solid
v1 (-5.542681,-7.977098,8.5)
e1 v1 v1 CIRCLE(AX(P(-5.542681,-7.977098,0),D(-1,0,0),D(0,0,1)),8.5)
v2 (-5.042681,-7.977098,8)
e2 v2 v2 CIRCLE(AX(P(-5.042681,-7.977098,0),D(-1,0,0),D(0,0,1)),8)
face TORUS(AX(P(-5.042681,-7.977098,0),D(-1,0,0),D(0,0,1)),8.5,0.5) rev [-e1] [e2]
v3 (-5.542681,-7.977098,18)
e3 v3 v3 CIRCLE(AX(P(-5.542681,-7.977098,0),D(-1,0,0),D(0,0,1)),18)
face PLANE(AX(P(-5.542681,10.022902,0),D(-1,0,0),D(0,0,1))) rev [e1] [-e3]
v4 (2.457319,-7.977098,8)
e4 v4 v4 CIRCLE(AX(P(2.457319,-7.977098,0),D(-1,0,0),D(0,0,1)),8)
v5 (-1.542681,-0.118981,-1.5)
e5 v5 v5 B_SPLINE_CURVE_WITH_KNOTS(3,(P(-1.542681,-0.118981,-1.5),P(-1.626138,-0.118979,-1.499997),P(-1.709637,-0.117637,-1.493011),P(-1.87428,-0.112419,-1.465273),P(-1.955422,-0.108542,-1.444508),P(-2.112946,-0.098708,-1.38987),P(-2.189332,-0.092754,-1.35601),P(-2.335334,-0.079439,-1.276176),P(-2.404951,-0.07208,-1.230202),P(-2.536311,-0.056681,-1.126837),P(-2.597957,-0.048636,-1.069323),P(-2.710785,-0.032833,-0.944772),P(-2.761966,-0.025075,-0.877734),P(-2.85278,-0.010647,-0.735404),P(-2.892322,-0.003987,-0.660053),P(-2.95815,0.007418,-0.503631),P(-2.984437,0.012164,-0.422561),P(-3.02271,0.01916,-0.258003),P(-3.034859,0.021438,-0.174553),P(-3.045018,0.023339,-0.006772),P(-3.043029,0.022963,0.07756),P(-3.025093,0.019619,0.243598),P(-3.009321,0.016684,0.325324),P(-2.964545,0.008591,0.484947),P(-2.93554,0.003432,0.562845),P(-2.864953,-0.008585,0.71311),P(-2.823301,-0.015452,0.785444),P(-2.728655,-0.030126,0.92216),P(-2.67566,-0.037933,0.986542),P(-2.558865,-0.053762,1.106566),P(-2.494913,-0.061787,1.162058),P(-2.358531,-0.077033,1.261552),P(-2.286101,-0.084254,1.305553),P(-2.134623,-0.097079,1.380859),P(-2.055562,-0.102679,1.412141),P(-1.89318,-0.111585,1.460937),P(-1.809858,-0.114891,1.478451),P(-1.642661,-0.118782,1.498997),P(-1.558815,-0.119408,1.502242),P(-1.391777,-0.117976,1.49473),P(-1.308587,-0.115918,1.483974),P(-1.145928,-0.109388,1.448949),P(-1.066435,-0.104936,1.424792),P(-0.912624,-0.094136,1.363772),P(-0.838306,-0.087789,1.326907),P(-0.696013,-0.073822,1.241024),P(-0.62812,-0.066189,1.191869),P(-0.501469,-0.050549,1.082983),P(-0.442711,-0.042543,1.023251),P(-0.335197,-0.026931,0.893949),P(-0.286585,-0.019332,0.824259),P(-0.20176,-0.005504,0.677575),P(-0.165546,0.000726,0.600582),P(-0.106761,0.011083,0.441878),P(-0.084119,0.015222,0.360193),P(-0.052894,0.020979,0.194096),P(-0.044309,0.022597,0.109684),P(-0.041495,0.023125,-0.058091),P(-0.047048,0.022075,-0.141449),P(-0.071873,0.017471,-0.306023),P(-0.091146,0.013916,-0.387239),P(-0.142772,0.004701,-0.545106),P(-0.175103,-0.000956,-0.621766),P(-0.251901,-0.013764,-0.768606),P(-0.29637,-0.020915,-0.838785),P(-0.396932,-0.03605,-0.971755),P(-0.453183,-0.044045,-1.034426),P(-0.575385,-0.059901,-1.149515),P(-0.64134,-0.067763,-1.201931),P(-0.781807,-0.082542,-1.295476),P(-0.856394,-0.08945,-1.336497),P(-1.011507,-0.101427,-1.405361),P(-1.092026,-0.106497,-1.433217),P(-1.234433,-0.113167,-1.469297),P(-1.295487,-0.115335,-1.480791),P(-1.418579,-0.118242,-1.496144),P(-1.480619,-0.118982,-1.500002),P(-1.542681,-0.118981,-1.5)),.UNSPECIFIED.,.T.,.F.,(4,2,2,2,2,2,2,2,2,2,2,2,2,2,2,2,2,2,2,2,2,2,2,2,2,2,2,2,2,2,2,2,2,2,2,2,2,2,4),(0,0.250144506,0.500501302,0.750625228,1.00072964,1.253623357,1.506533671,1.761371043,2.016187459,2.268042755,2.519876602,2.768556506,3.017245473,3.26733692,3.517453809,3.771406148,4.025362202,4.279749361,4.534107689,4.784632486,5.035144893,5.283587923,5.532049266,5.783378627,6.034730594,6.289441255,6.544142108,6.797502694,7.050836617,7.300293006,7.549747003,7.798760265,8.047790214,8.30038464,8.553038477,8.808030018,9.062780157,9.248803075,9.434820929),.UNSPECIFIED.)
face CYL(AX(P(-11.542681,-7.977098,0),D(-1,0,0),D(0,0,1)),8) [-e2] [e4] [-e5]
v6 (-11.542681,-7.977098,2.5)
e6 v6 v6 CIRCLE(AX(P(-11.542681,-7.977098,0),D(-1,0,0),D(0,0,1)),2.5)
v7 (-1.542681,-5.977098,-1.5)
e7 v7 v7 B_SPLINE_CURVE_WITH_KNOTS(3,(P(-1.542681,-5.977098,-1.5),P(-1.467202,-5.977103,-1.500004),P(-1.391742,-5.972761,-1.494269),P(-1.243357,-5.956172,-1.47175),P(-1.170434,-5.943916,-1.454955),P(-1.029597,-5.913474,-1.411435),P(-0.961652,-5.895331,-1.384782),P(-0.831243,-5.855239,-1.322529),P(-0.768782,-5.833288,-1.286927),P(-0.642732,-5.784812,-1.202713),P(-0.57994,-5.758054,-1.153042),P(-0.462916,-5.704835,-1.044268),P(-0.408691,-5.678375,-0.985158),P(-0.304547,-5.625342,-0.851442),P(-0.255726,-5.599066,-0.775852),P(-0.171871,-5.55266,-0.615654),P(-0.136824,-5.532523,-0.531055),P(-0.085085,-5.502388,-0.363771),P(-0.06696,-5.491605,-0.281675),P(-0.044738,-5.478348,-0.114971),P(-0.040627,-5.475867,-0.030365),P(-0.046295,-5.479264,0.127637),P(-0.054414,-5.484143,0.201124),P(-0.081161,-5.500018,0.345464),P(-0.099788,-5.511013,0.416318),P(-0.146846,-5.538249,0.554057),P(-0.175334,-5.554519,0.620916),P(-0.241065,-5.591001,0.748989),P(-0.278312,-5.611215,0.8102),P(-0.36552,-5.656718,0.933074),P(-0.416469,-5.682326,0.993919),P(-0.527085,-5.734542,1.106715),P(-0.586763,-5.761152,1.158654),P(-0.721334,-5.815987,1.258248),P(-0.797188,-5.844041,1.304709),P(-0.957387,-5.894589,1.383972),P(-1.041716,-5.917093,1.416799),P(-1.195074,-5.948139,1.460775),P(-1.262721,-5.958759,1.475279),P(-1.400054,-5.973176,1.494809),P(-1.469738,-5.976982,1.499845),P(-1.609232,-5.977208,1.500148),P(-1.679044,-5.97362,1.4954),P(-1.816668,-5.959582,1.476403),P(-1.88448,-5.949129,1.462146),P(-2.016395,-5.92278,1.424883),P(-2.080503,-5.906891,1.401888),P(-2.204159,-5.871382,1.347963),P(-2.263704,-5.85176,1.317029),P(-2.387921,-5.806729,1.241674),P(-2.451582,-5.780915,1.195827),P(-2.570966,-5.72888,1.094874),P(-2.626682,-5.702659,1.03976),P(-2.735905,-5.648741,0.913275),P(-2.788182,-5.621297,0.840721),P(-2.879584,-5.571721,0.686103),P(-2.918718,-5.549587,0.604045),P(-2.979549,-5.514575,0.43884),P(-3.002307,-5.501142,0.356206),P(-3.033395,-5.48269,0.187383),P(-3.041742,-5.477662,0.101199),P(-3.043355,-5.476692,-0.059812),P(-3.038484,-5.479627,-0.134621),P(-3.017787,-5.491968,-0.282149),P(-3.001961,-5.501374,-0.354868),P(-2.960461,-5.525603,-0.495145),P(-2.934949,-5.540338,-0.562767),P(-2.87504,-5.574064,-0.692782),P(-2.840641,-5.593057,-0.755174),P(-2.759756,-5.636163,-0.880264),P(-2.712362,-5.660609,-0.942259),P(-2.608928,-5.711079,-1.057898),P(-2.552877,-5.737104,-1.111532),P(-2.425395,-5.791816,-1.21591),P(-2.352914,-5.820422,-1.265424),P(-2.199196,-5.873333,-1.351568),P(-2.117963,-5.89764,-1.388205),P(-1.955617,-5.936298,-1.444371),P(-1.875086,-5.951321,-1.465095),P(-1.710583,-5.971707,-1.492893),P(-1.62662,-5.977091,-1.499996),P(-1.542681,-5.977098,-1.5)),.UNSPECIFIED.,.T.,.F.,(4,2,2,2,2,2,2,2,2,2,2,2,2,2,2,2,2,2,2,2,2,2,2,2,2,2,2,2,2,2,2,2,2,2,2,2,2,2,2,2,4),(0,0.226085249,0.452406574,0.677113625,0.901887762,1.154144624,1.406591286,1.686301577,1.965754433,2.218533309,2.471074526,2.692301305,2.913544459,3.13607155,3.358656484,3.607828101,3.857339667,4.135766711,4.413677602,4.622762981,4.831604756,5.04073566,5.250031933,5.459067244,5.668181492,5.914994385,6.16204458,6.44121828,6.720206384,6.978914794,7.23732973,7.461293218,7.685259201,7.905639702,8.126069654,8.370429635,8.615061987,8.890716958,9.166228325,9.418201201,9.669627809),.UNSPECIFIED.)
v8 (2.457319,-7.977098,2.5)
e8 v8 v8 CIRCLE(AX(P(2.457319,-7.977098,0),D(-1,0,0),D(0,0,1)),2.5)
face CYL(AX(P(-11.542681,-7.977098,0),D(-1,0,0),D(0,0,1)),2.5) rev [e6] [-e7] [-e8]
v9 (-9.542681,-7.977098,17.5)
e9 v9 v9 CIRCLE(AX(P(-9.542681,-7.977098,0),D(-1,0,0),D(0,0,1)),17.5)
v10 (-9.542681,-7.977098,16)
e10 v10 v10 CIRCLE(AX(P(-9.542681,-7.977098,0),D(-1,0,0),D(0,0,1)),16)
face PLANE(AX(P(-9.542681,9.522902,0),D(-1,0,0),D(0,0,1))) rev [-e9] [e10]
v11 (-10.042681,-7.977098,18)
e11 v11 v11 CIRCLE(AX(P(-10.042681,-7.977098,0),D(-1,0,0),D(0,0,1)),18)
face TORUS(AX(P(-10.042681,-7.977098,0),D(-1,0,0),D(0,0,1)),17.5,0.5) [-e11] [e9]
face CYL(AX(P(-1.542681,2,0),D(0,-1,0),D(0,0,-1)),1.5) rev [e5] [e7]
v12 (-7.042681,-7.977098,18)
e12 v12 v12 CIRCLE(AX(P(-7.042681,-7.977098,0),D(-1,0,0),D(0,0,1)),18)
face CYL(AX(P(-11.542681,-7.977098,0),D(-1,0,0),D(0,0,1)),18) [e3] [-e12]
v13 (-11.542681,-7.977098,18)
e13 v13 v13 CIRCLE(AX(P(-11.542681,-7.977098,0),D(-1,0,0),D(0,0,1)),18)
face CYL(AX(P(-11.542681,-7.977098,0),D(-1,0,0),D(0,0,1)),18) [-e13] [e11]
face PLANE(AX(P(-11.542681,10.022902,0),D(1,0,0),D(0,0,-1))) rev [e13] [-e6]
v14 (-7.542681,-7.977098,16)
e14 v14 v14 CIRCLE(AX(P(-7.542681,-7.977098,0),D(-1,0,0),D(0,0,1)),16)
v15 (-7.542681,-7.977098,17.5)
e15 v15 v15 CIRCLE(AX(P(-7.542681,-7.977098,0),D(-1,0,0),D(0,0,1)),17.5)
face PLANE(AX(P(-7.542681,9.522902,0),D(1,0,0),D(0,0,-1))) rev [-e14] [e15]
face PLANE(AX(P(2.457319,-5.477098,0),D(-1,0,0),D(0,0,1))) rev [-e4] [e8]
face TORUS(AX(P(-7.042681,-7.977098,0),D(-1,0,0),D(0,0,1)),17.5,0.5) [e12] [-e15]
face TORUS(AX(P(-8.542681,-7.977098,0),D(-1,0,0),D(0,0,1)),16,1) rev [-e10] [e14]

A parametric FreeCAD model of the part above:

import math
import FreeCAD as App
import Part
import Sketcher
from FreeCAD import Vector
Q = App.Units.Quantity

doc = App.newDocument("Part")
body = doc.addObject("PartDesign::Body", "Body")

# Sketch on XY plane
sketch1 = body.newObject("Sketcher::SketchObject", "Sketch")
sketch1.AttachmentSupport = (doc.getObject("XY_Plane"), [""])
sketch1.MapMode = "FlatFace"
sketch1.addGeometry(Part.LineSegment(Vector(-10.04, 10.02, 0), Vector(-11.54, 10.02, 0)), False)
sketch1.addGeometry(Part.LineSegment(Vector(-11.54, 10.02, 0), Vector(-11.54, -5.48, 0)), False)
sketch1.addGeometry(Part.LineSegment(Vector(-11.54, -5.48, 0), Vector(2.46, -5.48, 0)), False)
sketch1.addGeometry(Part.LineSegment(Vector(2.46, -5.48, 0), Vector(2.46, 0.02, 0)), False)
sketch1.addGeometry(Part.LineSegment(Vector(2.46, 0.02, 0), Vector(-5.04, 0.02, 0)), False)
sketch1.addGeometry(Part.ArcOfCircle(Part.Circle(Vector(-5.04, 0.52, 0), Vector(0, 0, 1), 0.5), math.radians(180), math.radians(270)), False)
sketch1.addGeometry(Part.LineSegment(Vector(-5.54, 0.52, 0), Vector(-5.54, 10.02, 0)), False)
sketch1.addGeometry(Part.LineSegment(Vector(-5.54, 10.02, 0), Vector(-7.04, 10.02, 0)), False)
sketch1.addGeometry(Part.ArcOfCircle(Part.Circle(Vector(-7.04, 9.52, 0), Vector(0, 0, 1), 0.5), math.radians(90), math.radians(180)), False)
sketch1.addGeometry(Part.LineSegment(Vector(-7.54, 9.52, 0), Vector(-7.54, 8.02, 0)), False)
sketch1.addGeometry(Part.ArcOfCircle(Part.Circle(Vector(-8.54, 8.02, 0), Vector(0, 0, 1), 1), math.radians(180), math.radians(360)), False)
sketch1.addGeometry(Part.LineSegment(Vector(-9.54, 8.02, 0), Vector(-9.54, 9.52, 0)), False)
sketch1.addGeometry(Part.ArcOfCircle(Part.Circle(Vector(-10.04, 9.52, 0), Vector(0, 0, 1), 0.5), math.radians(0), math.radians(90)), False)
sketch1.addGeometry(Part.LineSegment(Vector(-11.54, -7.98, 0), Vector(2.46, -7.98, 0)), True)  # axis
sketch1.addConstraint(Sketcher.Constraint("Coincident", 0, 2, 1, 1))
sketch1.addConstraint(Sketcher.Constraint("Coincident", 1, 2, 2, 1))
sketch1.addConstraint(Sketcher.Constraint("Coincident", 2, 2, 3, 1))
sketch1.addConstraint(Sketcher.Constraint("Coincident", 3, 2, 4, 1))
sketch1.addConstraint(Sketcher.Constraint("Tangent", 4, 2, 5, 2))
sketch1.addConstraint(Sketcher.Constraint("Tangent", 5, 1, 6, 1))
sketch1.addConstraint(Sketcher.Constraint("Coincident", 6, 2, 7, 1))
sketch1.addConstraint(Sketcher.Constraint("Tangent", 7, 2, 8, 1))
sketch1.addConstraint(Sketcher.Constraint("Tangent", 8, 2, 9, 1))
sketch1.addConstraint(Sketcher.Constraint("Tangent", 9, 2, 10, 2))
sketch1.addConstraint(Sketcher.Constraint("Tangent", 10, 1, 11, 1))
sketch1.addConstraint(Sketcher.Constraint("Tangent", 11, 2, 12, 1))
sketch1.addConstraint(Sketcher.Constraint("Tangent", 12, 2, 0, 1))
sketch1.addConstraint(Sketcher.Constraint("Horizontal", 0))
sketch1.addConstraint(Sketcher.Constraint("Vertical", 1))
sketch1.addConstraint(Sketcher.Constraint("Horizontal", 2))
sketch1.addConstraint(Sketcher.Constraint("Vertical", 3))
sketch1.addConstraint(Sketcher.Constraint("Horizontal", 4))
sketch1.addConstraint(Sketcher.Constraint("Vertical", 6))
sketch1.addConstraint(Sketcher.Constraint("Horizontal", 7))
sketch1.addConstraint(Sketcher.Constraint("Vertical", 9))
sketch1.addConstraint(Sketcher.Constraint("Vertical", 11))
sketch1.addConstraint(Sketcher.Constraint("Horizontal", 13))
sketch1.addConstraint(Sketcher.Constraint("Equal", 5, 8))
sketch1.addConstraint(Sketcher.Constraint("Equal", 8, 12))
sketch1.addConstraint(Sketcher.Constraint("Horizontal", 8, 3, 12, 3))
sketch1.addConstraint(Sketcher.Constraint("Vertical", 1, 2, 13, 1))
sketch1.addConstraint(Sketcher.Constraint("Vertical", 3, 2, 13, 2))
sketch1.addConstraint(Sketcher.Constraint("Equal", 0, 7))
sketch1.addConstraint(Sketcher.Constraint("Equal", 7, 9))
sketch1.addConstraint(Sketcher.Constraint("Radius", 10, Q("1 mm")))
sketch1.addConstraint(Sketcher.Constraint("Radius", 5, Q("0.5 mm")))
sketch1.addConstraint(Sketcher.Constraint("DistanceX", 2, 1, 2, 2, Q("14 mm")))
sketch1.addConstraint(Sketcher.Constraint("DistanceX", 0, 2, 0, 1, Q("1.5 mm")))
sketch1.addConstraint(Sketcher.Constraint("DistanceY", 1, 2, 1, 1, Q("15.5 mm")))
sketch1.addConstraint(Sketcher.Constraint("DistanceY", 3, 1, 3, 2, Q("5.5 mm")))
sketch1.addConstraint(Sketcher.Constraint("DistanceY", 13, 1, 4, 2, Q("8 mm")))
sketch1.addConstraint(Sketcher.Constraint("DistanceX", 5, 3, -1, 1, Q("5.042681 mm")))
sketch1.addConstraint(Sketcher.Constraint("DistanceY", -1, 1, 5, 3, Q("0.522902 mm")))
revolution = body.newObject("PartDesign::Revolution", "Revolution")
revolution.Profile = sketch1
revolution.ReferenceAxis = (sketch1, ["Axis0"])
revolution.Angle = 360

# Sketch on XZ plane
sketch2 = body.newObject("Sketcher::SketchObject", "Sketch001")
sketch2.AttachmentSupport = (doc.getObject("XZ_Plane"), [""])
sketch2.MapMode = "FlatFace"
sketch2.addGeometry(Part.Circle(Vector(-1.5, 0, 0), Vector(0, 0, 1), 1.5), False)
sketch2.addConstraint(Sketcher.Constraint("PointOnObject", 0, 3, -1))
sketch2.addConstraint(Sketcher.Constraint("Diameter", 0, Q("3 mm")))
sketch2.addConstraint(Sketcher.Constraint("DistanceX", 0, 3, -1, 1, Q("1.542681 mm")))
pocket1 = body.newObject("PartDesign::Pocket", "Pocket")
pocket1.Profile = sketch2
pocket1.Type = "TwoLengths"
pocket1.Length = 2
pocket1.Length2 = 8

doc.recompute()
